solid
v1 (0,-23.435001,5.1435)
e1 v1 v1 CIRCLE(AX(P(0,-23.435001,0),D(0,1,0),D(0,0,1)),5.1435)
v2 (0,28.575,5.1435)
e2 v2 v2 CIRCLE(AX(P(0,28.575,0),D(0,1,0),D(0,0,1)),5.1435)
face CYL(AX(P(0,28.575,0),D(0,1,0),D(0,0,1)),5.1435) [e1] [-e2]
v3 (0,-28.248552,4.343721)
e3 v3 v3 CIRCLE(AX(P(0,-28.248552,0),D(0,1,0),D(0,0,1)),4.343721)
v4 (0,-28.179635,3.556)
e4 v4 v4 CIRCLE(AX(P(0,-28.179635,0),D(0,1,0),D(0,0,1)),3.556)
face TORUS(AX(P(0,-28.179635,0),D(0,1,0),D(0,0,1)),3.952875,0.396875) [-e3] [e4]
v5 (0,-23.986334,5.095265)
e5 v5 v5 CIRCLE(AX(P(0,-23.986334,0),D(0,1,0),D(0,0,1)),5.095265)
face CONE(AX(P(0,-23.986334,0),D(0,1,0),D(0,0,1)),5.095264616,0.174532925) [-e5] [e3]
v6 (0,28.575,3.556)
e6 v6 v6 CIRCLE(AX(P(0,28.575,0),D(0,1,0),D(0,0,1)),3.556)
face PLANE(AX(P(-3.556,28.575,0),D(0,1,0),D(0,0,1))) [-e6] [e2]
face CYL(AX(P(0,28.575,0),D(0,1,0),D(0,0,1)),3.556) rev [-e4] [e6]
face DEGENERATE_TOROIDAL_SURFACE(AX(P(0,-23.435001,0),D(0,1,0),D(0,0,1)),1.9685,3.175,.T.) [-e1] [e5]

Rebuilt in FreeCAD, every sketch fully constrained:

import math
import FreeCAD as App
import Part
import Sketcher
from FreeCAD import Vector
Q = App.Units.Quantity

doc = App.newDocument("Part")
body = doc.addObject("PartDesign::Body", "Body")

sketch1 = body.newObject("Sketcher::SketchObject", "Sketch")
sketch1.AttachmentSupport = (doc.getObject("XY_Plane"), [""])
sketch1.MapMode = "FlatFace"
sketch1.addGeometry([
    Part.LineSegment(Vector(-3.56, 28.57, 0), Vector(-5.14, 28.57, 0)),
    Part.LineSegment(Vector(-5.14, 28.57, 0), Vector(-5.14, -23.44, 0)),
    Part.ArcOfCircle(Part.Circle(Vector(-1.97, -23.44, 0), Vector(0, 0, 1), 3.18), math.radians(-180), math.radians(-170)),
    Part.LineSegment(Vector(-5.1, -23.99, 0), Vector(-4.34, -28.25, 0)),
    Part.ArcOfCircle(Part.Circle(Vector(-3.95, -28.18, 0), Vector(0, 0, 1), 0.4), math.radians(-170), math.radians(0)),
    Part.LineSegment(Vector(-3.56, -28.18, 0), Vector(-3.56, 28.57, 0)),
], False)
sketch1.addConstraint([
    Sketcher.Constraint("Coincident", 0, 2, 1, 1),
    Sketcher.Constraint("Tangent", 1, 2, 2, 1),
    Sketcher.Constraint("Tangent", 2, 2, 3, 1),
    Sketcher.Constraint("Tangent", 3, 2, 4, 1),
    Sketcher.Constraint("Tangent", 4, 2, 5, 1),
    Sketcher.Constraint("Coincident", 5, 2, 0, 1),
    Sketcher.Constraint("Horizontal", 0),
    Sketcher.Constraint("Vertical", 1),
    Sketcher.Constraint("Vertical", 5),
    Sketcher.Constraint("Angle", 3, Q("-80 deg")),
    Sketcher.Constraint("Radius", 2, Q("0.125 in")),
    Sketcher.Constraint("Radius", 4, Q("0.015625 in")),
    Sketcher.Constraint("DistanceX", 0, 2, 0, 1, Q("0.0625 in")),
    Sketcher.Constraint("DistanceX", 4, 2, -1, 1, Q("0.14 in")),
    Sketcher.Constraint("DistanceY", -1, 1, 0, 2, Q("1.125 in")),
    Sketcher.Constraint("DistanceY", 1, 2, 1, 1, 52.010001),
])
revolution = body.newObject("PartDesign::Revolution", "Revolution")
revolution.Profile = sketch1
revolution.ReferenceAxis = (sketch1, ["V_Axis"])
revolution.Angle = 360

doc.recompute()
